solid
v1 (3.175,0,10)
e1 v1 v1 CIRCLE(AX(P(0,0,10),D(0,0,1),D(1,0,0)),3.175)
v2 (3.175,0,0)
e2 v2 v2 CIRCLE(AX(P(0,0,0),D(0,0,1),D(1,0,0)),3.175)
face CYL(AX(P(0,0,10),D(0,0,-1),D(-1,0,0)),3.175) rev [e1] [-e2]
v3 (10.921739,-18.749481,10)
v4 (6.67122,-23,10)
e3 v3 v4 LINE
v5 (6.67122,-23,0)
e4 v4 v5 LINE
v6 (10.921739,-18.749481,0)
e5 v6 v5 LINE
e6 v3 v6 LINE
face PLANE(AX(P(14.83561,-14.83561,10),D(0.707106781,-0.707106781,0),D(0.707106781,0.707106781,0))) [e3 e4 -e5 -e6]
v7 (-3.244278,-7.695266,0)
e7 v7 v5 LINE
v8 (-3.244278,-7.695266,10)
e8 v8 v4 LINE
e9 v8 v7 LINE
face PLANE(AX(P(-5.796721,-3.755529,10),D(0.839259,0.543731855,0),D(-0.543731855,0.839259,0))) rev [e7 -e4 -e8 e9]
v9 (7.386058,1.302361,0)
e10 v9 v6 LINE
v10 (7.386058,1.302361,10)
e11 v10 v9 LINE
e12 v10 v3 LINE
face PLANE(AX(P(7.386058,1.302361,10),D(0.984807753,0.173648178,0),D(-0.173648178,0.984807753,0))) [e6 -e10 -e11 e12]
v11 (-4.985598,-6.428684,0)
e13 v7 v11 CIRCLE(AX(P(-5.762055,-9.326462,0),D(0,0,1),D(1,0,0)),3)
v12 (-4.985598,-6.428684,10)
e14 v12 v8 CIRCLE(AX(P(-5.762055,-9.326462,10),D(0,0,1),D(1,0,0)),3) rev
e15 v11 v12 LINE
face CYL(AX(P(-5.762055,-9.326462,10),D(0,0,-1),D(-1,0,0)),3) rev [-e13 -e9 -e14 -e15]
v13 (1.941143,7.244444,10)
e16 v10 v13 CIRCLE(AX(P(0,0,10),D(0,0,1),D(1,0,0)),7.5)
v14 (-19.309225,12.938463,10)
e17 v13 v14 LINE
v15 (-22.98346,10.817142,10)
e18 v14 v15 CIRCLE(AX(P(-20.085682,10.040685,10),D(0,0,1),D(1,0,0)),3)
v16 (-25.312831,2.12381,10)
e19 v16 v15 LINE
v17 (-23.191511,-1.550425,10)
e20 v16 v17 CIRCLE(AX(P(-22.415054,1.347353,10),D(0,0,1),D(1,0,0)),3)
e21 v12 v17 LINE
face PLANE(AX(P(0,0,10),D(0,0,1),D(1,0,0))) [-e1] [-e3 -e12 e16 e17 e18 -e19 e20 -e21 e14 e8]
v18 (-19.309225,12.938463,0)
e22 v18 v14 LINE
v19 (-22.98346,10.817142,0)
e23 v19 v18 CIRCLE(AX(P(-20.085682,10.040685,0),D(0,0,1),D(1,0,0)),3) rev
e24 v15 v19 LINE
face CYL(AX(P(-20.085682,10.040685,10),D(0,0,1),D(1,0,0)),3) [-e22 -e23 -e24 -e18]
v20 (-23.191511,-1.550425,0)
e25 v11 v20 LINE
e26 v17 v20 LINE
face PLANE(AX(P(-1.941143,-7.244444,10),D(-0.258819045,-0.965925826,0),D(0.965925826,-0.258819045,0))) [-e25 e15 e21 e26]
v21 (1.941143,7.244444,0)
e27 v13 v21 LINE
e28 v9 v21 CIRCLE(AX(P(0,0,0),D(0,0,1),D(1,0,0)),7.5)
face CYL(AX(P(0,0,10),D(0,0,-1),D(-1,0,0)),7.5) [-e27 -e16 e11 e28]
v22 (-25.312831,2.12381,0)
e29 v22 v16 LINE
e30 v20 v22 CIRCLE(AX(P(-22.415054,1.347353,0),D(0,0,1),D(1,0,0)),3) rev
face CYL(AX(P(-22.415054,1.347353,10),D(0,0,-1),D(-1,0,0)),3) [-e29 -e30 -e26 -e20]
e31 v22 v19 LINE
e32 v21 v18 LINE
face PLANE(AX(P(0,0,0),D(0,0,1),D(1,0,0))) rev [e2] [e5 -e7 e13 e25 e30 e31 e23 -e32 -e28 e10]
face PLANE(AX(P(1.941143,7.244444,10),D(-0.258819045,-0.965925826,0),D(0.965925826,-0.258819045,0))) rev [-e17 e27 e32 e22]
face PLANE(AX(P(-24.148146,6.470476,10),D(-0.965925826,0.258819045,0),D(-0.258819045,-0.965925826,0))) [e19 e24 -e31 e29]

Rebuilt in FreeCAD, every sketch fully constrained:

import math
import FreeCAD as App
import Part
import Sketcher
Q = App.Units.Quantity


def edges_at(feature, points):
    """Names of the edges that pass closest to the given points."""
    edges = feature.Shape.Edges
    near = lambda p: min(range(len(edges)), key=lambda i: edges[i].distToShape(Part.Vertex(*p))[0])
    return sorted({f"Edge{near(p) + 1}" for p in points})

doc = App.newDocument("Part")
body = doc.addObject("PartDesign::Body", "Body")

# Sketch on XY plane
sketch1 = doc.addObject("Sketcher::SketchObject", "Sketch")
body.addObject(sketch1)
sketch1.AttachmentSupport = (doc.XY_Plane, [""])
sketch1.MapMode = "FlatFace"
sketch1.addGeometry(Part.LineSegment(App.Vector(1.9, 7.2, 0), App.Vector(-22.2, 13.7, 0)), False)
sketch1.addGeometry(Part.LineSegment(App.Vector(-22.2, 13.7, 0), App.Vector(-26.1, -0.8, 0)), False)
sketch1.addGeometry(Part.LineSegment(App.Vector(-26.1, -0.8, 0), App.Vector(-3.9, -6.7, 0)), False)
sketch1.addGeometry(Part.LineSegment(App.Vector(-3.9, -6.7, 0), App.Vector(6.7, -23, 0)), False)
sketch1.addGeometry(Part.LineSegment(App.Vector(6.7, -23, 0), App.Vector(10.9, -18.7, 0)), False)
sketch1.addGeometry(Part.LineSegment(App.Vector(10.9, -18.7, 0), App.Vector(7.4, 1.3, 0)), False)
sketch1.addGeometry(Part.ArcOfCircle(Part.Circle(App.Vector(0, 0, 0), App.Vector(0, 0, 1), 7.5), math.radians(10), math.radians(75)), False)
sketch1.addGeometry(Part.Circle(App.Vector(0, 0, 0), App.Vector(0, 0, 1), 3.2), False)
sketch1.addConstraint(Sketcher.Constraint("Coincident", 0, 2, 1, 1))
sketch1.addConstraint(Sketcher.Constraint("Coincident", 1, 2, 2, 1))
sketch1.addConstraint(Sketcher.Constraint("Coincident", 2, 2, 3, 1))
sketch1.addConstraint(Sketcher.Constraint("Coincident", 3, 2, 4, 1))
sketch1.addConstraint(Sketcher.Constraint("Coincident", 4, 2, 5, 1))
sketch1.addConstraint(Sketcher.Constraint("Tangent", 5, 2, 6, 1))
sketch1.addConstraint(Sketcher.Constraint("Tangent", 6, 2, 0, 1))
sketch1.addConstraint(Sketcher.Constraint("Coincident", 6, 3, -1, 1))
sketch1.addConstraint(Sketcher.Constraint("Coincident", 7, 3, -1, 1))
sketch1.addConstraint(Sketcher.Constraint("Perpendicular", 0, 1))
sketch1.addConstraint(Sketcher.Constraint("Perpendicular", 1, 2))
sketch1.addConstraint(Sketcher.Constraint("Radius", 6, Q("7.5 mm")))
sketch1.addConstraint(Sketcher.Constraint("Diameter", 7, Q("6.35 mm")))
sketch1.addConstraint(Sketcher.Constraint("Angle", 0, Q("165 deg")))
sketch1.addConstraint(Sketcher.Constraint("Angle", 4, Q("45 deg")))
sketch1.addConstraint(Sketcher.Constraint("Angle", 5, Q("100 deg")))
sketch1.addConstraint(Sketcher.Constraint("Distance", 0, Q("25 mm")))
sketch1.addConstraint(Sketcher.Constraint("Distance", 1, Q("15 mm")))
sketch1.addConstraint(Sketcher.Constraint("DistanceY", 3, 2, -1, 1, Q("23 mm")))
sketch1.addConstraint(Sketcher.Constraint("Distance", 2, Q("23.001601 mm")))
sketch1.addConstraint(Sketcher.Constraint("Distance", 3, Q("19.389461 mm")))
pad1 = doc.addObject("PartDesign::Pad", "Pad")
body.addObject(pad1)
pad1.Profile = sketch1
pad1.Length = 10
doc.recompute()

fillet = doc.addObject("PartDesign::Fillet", "Fillet")
body.addObject(fillet)
fillet.Base = (pad1, edges_at(pad1, [(-3.871, -6.727, 5), (-26.089, -0.774, 5), (-22.207, 13.715, 5)]))
fillet.Radius = 3

doc.recompute()
